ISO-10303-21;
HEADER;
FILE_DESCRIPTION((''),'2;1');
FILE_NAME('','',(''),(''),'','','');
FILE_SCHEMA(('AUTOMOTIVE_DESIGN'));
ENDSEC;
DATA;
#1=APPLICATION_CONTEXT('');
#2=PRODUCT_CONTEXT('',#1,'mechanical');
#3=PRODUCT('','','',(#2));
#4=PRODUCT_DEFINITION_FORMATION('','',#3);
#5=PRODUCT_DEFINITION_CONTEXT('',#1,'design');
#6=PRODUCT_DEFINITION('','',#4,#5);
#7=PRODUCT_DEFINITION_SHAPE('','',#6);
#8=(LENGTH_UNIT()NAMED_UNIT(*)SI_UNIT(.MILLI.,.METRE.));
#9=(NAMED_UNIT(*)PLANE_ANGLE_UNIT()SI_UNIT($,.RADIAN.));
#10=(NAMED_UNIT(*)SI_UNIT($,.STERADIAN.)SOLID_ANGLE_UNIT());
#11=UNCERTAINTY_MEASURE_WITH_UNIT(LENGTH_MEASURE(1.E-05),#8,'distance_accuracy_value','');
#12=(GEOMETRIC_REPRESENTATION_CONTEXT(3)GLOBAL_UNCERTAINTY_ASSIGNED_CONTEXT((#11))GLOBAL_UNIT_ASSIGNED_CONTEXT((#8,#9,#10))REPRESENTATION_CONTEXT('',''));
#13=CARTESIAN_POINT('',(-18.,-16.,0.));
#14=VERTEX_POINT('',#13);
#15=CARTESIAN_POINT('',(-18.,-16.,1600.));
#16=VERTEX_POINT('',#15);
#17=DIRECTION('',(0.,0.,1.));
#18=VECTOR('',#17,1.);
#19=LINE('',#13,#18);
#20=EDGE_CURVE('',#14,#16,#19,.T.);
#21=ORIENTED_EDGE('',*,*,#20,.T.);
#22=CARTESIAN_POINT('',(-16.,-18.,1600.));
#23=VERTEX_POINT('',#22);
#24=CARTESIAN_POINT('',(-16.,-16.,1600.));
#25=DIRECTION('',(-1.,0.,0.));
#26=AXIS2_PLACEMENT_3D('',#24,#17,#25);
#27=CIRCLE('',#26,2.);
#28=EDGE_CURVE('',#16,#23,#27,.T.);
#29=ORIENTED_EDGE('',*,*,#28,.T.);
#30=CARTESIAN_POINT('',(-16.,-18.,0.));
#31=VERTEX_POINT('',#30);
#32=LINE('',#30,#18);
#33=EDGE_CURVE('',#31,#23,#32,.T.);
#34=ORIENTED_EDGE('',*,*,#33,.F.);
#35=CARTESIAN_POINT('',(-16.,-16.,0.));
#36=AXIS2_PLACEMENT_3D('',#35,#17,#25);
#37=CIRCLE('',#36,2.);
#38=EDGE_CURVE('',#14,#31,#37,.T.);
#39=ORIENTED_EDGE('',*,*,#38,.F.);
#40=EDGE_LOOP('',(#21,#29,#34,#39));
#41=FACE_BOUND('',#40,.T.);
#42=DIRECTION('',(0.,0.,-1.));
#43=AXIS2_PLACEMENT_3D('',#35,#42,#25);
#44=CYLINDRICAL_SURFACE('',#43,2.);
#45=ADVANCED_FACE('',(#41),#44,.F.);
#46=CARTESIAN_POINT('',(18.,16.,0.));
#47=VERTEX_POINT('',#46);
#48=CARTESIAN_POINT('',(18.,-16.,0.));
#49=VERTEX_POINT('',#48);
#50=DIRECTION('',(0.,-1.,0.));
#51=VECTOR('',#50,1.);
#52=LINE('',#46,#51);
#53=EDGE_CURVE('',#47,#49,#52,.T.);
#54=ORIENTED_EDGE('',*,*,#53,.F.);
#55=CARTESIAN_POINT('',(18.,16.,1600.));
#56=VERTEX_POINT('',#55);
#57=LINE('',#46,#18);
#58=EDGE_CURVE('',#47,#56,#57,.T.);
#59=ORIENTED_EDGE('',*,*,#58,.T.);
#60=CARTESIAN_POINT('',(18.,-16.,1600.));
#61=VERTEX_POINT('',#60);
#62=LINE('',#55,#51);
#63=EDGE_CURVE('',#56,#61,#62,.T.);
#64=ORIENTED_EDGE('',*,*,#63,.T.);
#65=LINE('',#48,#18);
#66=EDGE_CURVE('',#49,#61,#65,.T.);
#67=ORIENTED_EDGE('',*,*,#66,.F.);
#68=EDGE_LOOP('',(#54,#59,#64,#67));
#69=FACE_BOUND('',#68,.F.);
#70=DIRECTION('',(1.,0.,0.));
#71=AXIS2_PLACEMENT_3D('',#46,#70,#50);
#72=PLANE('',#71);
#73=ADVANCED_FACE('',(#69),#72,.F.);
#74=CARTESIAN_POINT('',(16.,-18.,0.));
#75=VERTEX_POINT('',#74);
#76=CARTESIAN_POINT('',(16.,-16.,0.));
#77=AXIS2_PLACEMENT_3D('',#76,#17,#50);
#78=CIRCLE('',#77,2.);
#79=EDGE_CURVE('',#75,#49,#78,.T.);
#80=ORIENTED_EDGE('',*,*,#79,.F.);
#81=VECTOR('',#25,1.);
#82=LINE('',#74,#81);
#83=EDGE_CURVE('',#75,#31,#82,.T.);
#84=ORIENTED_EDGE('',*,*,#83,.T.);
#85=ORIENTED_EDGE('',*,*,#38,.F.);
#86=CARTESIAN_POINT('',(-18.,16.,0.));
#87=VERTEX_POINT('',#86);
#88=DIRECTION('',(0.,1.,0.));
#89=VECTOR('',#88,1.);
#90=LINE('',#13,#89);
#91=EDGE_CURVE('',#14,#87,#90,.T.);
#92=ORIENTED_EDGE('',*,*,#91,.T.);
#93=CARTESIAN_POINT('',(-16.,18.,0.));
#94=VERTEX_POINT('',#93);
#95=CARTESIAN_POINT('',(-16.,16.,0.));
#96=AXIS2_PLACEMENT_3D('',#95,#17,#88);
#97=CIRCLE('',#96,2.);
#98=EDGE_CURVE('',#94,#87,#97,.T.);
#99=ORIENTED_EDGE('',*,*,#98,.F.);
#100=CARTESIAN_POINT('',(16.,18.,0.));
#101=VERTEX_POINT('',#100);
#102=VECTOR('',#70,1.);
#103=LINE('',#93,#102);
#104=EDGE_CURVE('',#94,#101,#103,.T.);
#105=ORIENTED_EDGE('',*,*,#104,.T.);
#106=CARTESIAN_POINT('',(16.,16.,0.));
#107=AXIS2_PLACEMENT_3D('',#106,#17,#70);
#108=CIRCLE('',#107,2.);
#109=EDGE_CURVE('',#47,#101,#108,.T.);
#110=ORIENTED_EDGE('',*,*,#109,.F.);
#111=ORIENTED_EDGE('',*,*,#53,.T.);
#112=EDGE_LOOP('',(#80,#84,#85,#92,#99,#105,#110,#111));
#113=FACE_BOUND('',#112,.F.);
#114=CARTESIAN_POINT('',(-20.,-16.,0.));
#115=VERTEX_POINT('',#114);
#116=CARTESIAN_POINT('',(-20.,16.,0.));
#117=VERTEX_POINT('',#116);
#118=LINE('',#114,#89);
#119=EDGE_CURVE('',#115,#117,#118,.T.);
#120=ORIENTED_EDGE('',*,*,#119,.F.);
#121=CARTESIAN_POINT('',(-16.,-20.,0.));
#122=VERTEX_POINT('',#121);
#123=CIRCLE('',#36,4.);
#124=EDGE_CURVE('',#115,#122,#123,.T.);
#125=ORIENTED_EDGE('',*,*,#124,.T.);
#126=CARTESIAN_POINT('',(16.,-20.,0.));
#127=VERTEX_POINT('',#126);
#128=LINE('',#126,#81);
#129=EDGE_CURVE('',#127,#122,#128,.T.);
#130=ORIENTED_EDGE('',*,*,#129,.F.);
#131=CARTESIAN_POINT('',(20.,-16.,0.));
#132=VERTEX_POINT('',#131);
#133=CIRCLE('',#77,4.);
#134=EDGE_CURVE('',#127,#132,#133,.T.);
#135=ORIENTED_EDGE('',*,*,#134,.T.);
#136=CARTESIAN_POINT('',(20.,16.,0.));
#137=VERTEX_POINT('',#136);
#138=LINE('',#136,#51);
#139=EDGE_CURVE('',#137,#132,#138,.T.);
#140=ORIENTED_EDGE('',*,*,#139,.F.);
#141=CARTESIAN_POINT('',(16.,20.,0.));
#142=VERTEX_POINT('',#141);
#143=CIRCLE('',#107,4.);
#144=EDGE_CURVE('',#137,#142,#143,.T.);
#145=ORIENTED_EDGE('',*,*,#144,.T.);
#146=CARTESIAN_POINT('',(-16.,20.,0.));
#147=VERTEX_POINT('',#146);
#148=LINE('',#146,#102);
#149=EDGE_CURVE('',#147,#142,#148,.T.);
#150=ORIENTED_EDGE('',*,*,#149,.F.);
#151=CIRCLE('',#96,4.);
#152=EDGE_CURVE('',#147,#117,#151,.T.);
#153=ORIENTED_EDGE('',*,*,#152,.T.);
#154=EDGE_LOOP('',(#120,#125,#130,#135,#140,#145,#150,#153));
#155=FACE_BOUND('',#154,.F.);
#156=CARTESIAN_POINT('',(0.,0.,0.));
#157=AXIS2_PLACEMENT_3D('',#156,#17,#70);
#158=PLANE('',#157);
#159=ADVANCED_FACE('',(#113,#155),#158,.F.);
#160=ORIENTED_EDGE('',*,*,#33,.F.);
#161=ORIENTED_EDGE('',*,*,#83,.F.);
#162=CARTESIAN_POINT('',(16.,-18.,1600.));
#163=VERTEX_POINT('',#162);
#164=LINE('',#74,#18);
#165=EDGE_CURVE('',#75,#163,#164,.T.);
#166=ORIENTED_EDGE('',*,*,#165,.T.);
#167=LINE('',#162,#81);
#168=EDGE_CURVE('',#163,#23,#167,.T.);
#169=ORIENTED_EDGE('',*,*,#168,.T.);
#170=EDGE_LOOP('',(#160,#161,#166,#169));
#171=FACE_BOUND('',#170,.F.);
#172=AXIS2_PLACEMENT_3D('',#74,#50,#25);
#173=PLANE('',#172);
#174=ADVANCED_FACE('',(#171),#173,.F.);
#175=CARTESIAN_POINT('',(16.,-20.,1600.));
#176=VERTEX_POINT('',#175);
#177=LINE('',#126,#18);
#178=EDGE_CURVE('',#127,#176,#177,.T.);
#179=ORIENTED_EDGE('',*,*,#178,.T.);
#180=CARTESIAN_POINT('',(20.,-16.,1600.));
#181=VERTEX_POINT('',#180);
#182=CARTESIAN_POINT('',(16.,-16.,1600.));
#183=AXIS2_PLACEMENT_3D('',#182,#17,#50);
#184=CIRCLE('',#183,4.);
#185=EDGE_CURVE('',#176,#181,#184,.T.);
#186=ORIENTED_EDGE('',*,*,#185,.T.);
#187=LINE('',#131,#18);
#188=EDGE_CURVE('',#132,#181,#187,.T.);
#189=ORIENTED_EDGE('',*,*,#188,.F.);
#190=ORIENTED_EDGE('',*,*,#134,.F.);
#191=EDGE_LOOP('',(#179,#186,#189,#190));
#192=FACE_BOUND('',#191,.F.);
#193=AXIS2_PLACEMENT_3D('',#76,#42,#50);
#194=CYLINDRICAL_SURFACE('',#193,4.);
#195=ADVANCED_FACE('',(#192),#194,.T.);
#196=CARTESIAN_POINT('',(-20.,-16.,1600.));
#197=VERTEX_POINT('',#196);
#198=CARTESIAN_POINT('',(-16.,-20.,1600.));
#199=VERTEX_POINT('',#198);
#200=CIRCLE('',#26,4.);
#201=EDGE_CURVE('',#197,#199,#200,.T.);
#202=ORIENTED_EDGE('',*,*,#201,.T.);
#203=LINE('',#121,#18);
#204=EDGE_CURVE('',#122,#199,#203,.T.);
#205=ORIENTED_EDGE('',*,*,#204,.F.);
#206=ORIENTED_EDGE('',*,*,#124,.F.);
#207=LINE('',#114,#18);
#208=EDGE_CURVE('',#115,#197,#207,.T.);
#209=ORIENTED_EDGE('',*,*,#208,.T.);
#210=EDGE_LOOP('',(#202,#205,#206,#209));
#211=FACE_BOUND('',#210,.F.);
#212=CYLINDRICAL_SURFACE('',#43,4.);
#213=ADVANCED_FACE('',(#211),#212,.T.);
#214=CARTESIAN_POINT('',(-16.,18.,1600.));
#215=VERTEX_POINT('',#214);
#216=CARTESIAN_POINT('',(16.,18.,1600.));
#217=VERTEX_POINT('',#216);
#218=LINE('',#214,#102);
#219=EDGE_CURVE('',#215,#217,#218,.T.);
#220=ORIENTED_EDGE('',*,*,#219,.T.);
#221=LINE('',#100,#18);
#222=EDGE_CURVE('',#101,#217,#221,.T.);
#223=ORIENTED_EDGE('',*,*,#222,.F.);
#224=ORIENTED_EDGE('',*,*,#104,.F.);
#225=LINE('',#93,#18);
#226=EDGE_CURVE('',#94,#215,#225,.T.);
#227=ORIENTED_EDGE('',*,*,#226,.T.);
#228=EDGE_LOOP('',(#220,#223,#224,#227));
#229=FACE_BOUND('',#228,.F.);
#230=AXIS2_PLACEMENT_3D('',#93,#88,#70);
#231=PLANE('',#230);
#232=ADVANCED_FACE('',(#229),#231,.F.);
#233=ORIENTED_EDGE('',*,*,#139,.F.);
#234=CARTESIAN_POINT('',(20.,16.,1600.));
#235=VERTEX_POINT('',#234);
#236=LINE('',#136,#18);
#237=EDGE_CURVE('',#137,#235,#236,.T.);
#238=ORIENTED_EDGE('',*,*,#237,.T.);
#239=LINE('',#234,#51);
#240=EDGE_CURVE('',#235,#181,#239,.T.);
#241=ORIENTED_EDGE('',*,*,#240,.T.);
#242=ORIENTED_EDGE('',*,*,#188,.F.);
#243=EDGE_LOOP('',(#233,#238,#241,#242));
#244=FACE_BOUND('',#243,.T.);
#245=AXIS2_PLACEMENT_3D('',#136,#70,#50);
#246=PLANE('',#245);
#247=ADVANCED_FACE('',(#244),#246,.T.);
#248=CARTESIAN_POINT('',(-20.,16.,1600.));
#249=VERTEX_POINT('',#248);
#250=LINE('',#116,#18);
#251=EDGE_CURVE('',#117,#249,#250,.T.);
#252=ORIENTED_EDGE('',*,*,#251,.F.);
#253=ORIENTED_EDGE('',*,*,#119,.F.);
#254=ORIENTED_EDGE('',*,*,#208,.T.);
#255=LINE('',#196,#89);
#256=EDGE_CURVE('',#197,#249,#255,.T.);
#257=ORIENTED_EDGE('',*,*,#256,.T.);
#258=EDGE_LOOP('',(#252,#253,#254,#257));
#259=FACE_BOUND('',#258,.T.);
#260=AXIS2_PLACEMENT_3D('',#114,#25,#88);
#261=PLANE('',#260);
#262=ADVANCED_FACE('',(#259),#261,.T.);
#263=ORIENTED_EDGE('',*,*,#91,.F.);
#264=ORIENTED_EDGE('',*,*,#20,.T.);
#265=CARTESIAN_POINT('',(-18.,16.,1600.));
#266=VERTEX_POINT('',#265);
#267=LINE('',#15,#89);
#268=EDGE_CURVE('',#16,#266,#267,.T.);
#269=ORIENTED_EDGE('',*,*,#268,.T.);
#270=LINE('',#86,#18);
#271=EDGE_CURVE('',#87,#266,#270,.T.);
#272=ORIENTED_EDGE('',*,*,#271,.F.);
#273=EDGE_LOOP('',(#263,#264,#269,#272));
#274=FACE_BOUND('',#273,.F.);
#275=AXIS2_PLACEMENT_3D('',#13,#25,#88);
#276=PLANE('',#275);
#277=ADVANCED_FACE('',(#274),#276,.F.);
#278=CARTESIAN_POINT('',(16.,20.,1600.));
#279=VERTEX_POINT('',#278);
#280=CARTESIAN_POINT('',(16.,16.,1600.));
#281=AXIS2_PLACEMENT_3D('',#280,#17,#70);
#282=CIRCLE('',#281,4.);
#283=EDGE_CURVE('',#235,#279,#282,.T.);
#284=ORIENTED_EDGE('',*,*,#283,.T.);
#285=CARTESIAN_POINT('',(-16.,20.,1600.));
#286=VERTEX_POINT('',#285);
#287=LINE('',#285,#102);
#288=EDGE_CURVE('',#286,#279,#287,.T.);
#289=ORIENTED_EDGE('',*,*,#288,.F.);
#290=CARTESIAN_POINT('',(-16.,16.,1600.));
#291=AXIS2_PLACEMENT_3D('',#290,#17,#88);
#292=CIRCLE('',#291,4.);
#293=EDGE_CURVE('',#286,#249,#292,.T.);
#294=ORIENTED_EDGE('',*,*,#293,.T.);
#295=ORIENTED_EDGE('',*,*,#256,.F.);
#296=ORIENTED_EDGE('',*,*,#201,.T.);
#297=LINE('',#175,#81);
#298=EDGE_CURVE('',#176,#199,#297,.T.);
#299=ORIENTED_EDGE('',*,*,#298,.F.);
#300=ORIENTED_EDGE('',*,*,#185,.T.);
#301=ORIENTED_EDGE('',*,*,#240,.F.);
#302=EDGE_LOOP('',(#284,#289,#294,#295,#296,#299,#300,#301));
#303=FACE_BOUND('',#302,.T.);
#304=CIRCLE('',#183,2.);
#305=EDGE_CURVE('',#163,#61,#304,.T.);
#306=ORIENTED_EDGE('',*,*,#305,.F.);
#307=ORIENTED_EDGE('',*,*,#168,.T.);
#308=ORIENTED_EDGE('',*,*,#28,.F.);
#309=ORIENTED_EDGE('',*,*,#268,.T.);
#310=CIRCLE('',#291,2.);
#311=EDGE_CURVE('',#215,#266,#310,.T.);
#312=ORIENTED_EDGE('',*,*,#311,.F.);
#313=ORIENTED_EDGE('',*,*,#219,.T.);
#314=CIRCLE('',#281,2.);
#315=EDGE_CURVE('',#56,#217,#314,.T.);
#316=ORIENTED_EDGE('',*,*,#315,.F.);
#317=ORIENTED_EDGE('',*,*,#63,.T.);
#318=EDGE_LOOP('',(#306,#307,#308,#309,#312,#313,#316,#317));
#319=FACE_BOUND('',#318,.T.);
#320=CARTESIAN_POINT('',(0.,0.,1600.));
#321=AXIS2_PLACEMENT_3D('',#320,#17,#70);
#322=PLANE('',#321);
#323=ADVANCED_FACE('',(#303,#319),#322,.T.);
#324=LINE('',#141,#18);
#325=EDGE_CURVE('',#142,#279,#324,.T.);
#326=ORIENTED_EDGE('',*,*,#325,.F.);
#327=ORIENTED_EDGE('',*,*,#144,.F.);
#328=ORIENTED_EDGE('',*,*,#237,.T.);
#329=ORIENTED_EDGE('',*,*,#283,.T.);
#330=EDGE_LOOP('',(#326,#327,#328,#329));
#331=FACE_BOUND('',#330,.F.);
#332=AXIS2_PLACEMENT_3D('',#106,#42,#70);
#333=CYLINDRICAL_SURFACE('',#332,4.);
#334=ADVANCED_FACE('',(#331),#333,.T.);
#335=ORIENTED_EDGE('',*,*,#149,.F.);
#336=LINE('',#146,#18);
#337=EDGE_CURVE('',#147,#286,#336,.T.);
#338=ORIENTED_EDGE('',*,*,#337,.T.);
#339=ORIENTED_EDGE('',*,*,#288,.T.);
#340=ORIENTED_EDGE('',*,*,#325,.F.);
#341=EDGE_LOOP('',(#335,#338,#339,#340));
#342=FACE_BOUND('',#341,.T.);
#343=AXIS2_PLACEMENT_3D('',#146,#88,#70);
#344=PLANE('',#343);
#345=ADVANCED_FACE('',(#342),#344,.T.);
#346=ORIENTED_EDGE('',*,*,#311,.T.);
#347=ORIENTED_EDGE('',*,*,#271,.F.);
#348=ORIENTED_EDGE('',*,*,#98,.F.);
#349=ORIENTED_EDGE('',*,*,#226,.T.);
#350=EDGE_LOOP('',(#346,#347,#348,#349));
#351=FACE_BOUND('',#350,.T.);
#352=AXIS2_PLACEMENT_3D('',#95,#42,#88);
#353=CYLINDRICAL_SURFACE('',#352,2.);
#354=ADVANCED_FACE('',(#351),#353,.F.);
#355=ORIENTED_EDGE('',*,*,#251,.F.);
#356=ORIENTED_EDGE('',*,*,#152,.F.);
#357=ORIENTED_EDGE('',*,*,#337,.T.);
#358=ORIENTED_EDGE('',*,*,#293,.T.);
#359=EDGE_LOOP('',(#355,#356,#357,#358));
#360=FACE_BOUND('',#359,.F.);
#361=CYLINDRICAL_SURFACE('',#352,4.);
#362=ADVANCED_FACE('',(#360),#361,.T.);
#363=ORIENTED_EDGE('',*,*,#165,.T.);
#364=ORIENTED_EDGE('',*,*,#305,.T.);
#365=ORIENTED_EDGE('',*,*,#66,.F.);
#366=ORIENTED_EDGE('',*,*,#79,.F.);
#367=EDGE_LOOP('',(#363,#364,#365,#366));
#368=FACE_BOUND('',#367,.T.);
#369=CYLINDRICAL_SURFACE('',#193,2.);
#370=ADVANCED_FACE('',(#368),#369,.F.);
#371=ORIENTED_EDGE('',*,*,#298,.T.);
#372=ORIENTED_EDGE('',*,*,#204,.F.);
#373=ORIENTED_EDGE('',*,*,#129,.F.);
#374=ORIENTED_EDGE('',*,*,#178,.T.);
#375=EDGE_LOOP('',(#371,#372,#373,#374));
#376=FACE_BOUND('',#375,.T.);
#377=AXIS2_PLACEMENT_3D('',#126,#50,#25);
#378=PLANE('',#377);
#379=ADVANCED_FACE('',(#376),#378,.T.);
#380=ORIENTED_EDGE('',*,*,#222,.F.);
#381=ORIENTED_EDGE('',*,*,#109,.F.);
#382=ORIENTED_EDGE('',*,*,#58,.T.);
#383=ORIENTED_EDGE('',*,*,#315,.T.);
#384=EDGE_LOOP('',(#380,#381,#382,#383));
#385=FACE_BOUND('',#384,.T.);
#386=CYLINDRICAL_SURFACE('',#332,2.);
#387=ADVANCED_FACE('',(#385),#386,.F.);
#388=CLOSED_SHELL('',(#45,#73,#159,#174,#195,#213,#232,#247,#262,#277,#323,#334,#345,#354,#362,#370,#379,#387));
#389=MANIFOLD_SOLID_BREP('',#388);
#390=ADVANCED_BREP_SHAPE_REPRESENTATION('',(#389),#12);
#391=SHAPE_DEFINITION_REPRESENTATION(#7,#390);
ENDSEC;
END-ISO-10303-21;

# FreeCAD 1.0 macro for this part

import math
import FreeCAD as App
import Part
import Sketcher
Q = App.Units.Quantity

doc = App.newDocument("Part")
body = doc.addObject("PartDesign::Body", "Body")

sketch1 = body.newObject("Sketcher::SketchObject", "Sketch")
sketch1.AttachmentSupport = (doc.getObject("XY_Plane"), [""])
sketch1.MapMode = "FlatFace"
sketch1.addGeometry([
    Part.LineSegment(App.Vector(-20, 16, 0), App.Vector(-20, -16, 0)),
    Part.ArcOfCircle(Part.Circle(App.Vector(-16, -16, 0), App.Vector(0, 0, 1), 4), math.radians(180), math.radians(270)),
    Part.LineSegment(App.Vector(-16, -20, 0), App.Vector(16, -20, 0)),
    Part.ArcOfCircle(Part.Circle(App.Vector(16, -16, 0), App.Vector(0, 0, 1), 4), math.radians(-90), math.radians(0)),
    Part.LineSegment(App.Vector(20, -16, 0), App.Vector(20, 16, 0)),
    Part.ArcOfCircle(Part.Circle(App.Vector(16, 16, 0), App.Vector(0, 0, 1), 4), math.radians(0), math.radians(90)),
    Part.LineSegment(App.Vector(16, 20, 0), App.Vector(-16, 20, 0)),
    Part.ArcOfCircle(Part.Circle(App.Vector(-16, 16, 0), App.Vector(0, 0, 1), 4), math.radians(90), math.radians(180)),
    Part.ArcOfCircle(Part.Circle(App.Vector(-16, 16, 0), App.Vector(0, 0, 1), 2), math.radians(90), math.radians(180)),
    Part.LineSegment(App.Vector(-16, 18, 0), App.Vector(16, 18, 0)),
    Part.ArcOfCircle(Part.Circle(App.Vector(16, 16, 0), App.Vector(0, 0, 1), 2), math.radians(0), math.radians(90)),
    Part.LineSegment(App.Vector(18, 16, 0), App.Vector(18, -16, 0)),
    Part.ArcOfCircle(Part.Circle(App.Vector(16, -16, 0), App.Vector(0, 0, 1), 2), math.radians(-90), math.radians(0)),
    Part.LineSegment(App.Vector(16, -18, 0), App.Vector(-16, -18, 0)),
    Part.ArcOfCircle(Part.Circle(App.Vector(-16, -16, 0), App.Vector(0, 0, 1), 2), math.radians(180), math.radians(270)),
    Part.LineSegment(App.Vector(-18, -16, 0), App.Vector(-18, 16, 0)),
], False)
sketch1.addConstraint([
    Sketcher.Constraint("Tangent", 0, 2, 1, 1),
    Sketcher.Constraint("Tangent", 1, 2, 2, 1),
    Sketcher.Constraint("Tangent", 2, 2, 3, 1),
    Sketcher.Constraint("Tangent", 3, 2, 4, 1),
    Sketcher.Constraint("Tangent", 4, 2, 5, 1),
    Sketcher.Constraint("Tangent", 5, 2, 6, 1),
    Sketcher.Constraint("Tangent", 6, 2, 7, 1),
    Sketcher.Constraint("Tangent", 7, 2, 0, 1),
    Sketcher.Constraint("Tangent", 8, 1, 9, 1),
    Sketcher.Constraint("Tangent", 9, 2, 10, 2),
    Sketcher.Constraint("Tangent", 10, 1, 11, 1),
    Sketcher.Constraint("Tangent", 11, 2, 12, 2),
    Sketcher.Constraint("Tangent", 12, 1, 13, 1),
    Sketcher.Constraint("Tangent", 13, 2, 14, 2),
    Sketcher.Constraint("Tangent", 14, 1, 15, 1),
    Sketcher.Constraint("Tangent", 15, 2, 8, 2),
    Sketcher.Constraint("Vertical", 0),
    Sketcher.Constraint("Horizontal", 2),
    Sketcher.Constraint("Vertical", 4),
    Sketcher.Constraint("Horizontal", 6),
    Sketcher.Constraint("Horizontal", 9),
    Sketcher.Constraint("Vertical", 11),
    Sketcher.Constraint("Horizontal", 13),
    Sketcher.Constraint("Vertical", 15),
    Sketcher.Constraint("Coincident", 8, 3, 7, 3),
    Sketcher.Constraint("Coincident", 10, 3, 5, 3),
    Sketcher.Constraint("Coincident", 12, 3, 3, 3),
    Sketcher.Constraint("Equal", 1, 3),
    Sketcher.Constraint("Equal", 3, 5),
    Sketcher.Constraint("Equal", 5, 7),
    Sketcher.Constraint("Equal", 12, 14),
    Sketcher.Constraint("Symmetric", 1, 3, 5, 3, -1, 1),
    Sketcher.Constraint("Equal", 13, 0),
    Sketcher.Constraint("Radius", 1, Q("4 mm")),
    Sketcher.Constraint("Radius", 8, Q("2 mm")),
    Sketcher.Constraint("DistanceX", 0, 2, -1, 1, Q("20 mm")),
])
pad1 = body.newObject("PartDesign::Pad", "Pad")
pad1.Profile = sketch1
pad1.Length = 1600

doc.recompute()
